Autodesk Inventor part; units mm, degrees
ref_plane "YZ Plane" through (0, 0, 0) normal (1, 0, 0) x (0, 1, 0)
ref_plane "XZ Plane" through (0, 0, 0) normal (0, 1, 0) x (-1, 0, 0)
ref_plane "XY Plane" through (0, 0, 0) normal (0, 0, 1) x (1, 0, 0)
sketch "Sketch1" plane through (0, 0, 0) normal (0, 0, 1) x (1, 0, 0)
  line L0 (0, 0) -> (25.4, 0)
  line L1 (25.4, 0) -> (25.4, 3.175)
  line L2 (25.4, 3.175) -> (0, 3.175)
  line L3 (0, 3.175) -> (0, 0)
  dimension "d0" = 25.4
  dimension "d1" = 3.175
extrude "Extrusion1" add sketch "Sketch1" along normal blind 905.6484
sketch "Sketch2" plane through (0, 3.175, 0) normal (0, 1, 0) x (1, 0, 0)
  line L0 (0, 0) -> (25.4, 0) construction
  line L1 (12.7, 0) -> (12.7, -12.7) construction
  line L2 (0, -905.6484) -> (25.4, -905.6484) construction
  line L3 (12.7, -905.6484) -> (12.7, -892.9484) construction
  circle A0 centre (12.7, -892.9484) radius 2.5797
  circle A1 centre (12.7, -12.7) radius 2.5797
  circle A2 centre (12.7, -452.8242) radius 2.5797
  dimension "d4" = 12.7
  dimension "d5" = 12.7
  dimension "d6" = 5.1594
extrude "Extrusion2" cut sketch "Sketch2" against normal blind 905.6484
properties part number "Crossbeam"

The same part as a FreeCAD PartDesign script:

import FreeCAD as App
import Part
import Sketcher
Q = App.Units.Quantity

doc = App.newDocument("Part")
body = doc.addObject("PartDesign::Body", "Body")

# Sketch on XY plane
sketch1 = body.newObject("Sketcher::SketchObject", "Sketch")
sketch1.AttachmentSupport = (doc.getObject("XY_Plane"), [""])
sketch1.MapMode = "FlatFace"
sketch1.addGeometry([
    Part.LineSegment(App.Vector(0, 3.2, 0), App.Vector(0, 0, 0)),
    Part.LineSegment(App.Vector(0, 0, 0), App.Vector(25.4, 0, 0)),
    Part.LineSegment(App.Vector(25.4, 0, 0), App.Vector(25.4, 3.2, 0)),
    Part.LineSegment(App.Vector(25.4, 3.2, 0), App.Vector(0, 3.2, 0)),
], False)
sketch1.addConstraint([
    Sketcher.Constraint("Coincident", 0, 2, 1, 1),
    Sketcher.Constraint("Coincident", 1, 2, 2, 1),
    Sketcher.Constraint("Coincident", 2, 2, 3, 1),
    Sketcher.Constraint("Coincident", 3, 2, 0, 1),
    Sketcher.Constraint("Vertical", 0),
    Sketcher.Constraint("Horizontal", 1),
    Sketcher.Constraint("Vertical", 2),
    Sketcher.Constraint("Horizontal", 3),
    Sketcher.Constraint("Coincident", 0, 2, -1, 1),
    Sketcher.Constraint("DistanceX", 1, 1, 1, 2, Q("1 in")),
    Sketcher.Constraint("DistanceY", 0, 2, 0, 1, Q("0.125 in")),
])
pad1 = body.newObject("PartDesign::Pad", "Pad")
pad1.Profile = sketch1
pad1.Length = 905.6484

# Sketch on XZ plane
sketch2 = body.newObject("Sketcher::SketchObject", "Sketch001")
sketch2.AttachmentSupport = (doc.getObject("XZ_Plane"), [""])
sketch2.MapMode = "FlatFace"
sketch2.AttachmentOffset = App.Placement(App.Vector(0, 0, -0.125 * 25.4), App.Rotation())
sketch2.addGeometry([
    Part.Circle(App.Vector(12.7, 892.9, 0), App.Vector(0, 0, 1), 2.6),
    Part.Circle(App.Vector(12.7, 12.7, 0), App.Vector(0, 0, 1), 2.6),
    Part.Circle(App.Vector(12.7, 452.8, 0), App.Vector(0, 0, 1), 2.6),
], False)
sketch2.addConstraint([
    Sketcher.Constraint("Equal", 0, 1),
    Sketcher.Constraint("Equal", 1, 2),
    Sketcher.Constraint("Vertical", 0, 3, 1, 3),
    Sketcher.Constraint("Vertical", 1, 3, 2, 3),
    Sketcher.Constraint("Diameter", 0, Q("0.203126 in")),
    Sketcher.Constraint("DistanceX", -1, 1, 0, 3, Q("0.5 in")),
    Sketcher.Constraint("DistanceY", -1, 1, 1, 3, Q("0.5 in")),
    Sketcher.Constraint("DistanceY", -1, 1, 0, 3, Q("892.9484 mm")),
    Sketcher.Constraint("DistanceY", -1, 1, 2, 3, Q("452.8242 mm")),
])
pocket1 = body.newObject("PartDesign::Pocket", "Pocket")
pocket1.Profile = sketch2
pocket1.Length = 905.6484
pocket1.Reversed = True

doc.recompute()
